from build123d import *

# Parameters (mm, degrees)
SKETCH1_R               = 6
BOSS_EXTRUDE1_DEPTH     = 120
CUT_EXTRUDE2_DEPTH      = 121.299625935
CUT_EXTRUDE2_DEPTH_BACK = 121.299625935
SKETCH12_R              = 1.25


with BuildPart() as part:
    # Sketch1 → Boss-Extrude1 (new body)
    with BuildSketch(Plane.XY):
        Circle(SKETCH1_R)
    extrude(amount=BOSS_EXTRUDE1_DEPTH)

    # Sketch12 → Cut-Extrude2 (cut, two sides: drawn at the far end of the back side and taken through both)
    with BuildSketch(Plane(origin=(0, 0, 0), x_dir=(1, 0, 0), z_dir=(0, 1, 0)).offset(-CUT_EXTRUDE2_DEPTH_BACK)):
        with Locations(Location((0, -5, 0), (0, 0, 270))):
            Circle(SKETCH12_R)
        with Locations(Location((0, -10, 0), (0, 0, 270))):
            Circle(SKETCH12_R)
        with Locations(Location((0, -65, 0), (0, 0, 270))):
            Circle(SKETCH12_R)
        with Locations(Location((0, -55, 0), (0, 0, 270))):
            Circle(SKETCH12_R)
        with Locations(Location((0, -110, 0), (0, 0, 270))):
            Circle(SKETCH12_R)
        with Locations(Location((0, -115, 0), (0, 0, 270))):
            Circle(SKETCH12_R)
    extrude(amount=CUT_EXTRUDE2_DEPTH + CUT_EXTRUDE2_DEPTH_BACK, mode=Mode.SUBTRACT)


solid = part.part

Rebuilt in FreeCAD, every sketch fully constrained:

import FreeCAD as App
import Part
import Sketcher

V = App.Vector

doc = App.newDocument("Part")
body = doc.addObject("PartDesign::Body", "Body")

sketch1 = body.newObject("Sketcher::SketchObject", "Sketch")
sketch1.AttachmentSupport = (doc.getObject("XY_Plane"), [""])
sketch1.MapMode = "FlatFace"
sketch1.addGeometry(Part.Circle(V(0, 0, 0), V(0, 0, 1), 6), False)
sketch1.addConstraint([
    Sketcher.Constraint("Coincident", 0, 3, -1, 1),
    Sketcher.Constraint("Diameter", 0, 12.0),
])
pad1 = body.newObject("PartDesign::Pad", "Pad")
pad1.Profile = sketch1
pad1.Length = 120

sketch2 = body.newObject("Sketcher::SketchObject", "Sketch001")
sketch2.AttachmentSupport = (doc.getObject("XZ_Plane"), [""])
sketch2.MapMode = "FlatFace"
sketch2.addGeometry([
    Part.Circle(V(0, 5, 0), V(0, 0, 1), 1.25),
    Part.Circle(V(0, 10, 0), V(0, 0, 1), 1.25),
    Part.Circle(V(0, 65, 0), V(0, 0, 1), 1.25),
    Part.Circle(V(0, 55, 0), V(0, 0, 1), 1.25),
    Part.Circle(V(0, 110, 0), V(0, 0, 1), 1.25),
    Part.Circle(V(0, 115, 0), V(0, 0, 1), 1.25),
], False)
sketch2.addConstraint([
    Sketcher.Constraint("Equal", 0, 1),
    Sketcher.Constraint("Equal", 1, 2),
    Sketcher.Constraint("Equal", 2, 3),
    Sketcher.Constraint("Equal", 3, 4),
    Sketcher.Constraint("Equal", 4, 5),
    Sketcher.Constraint("PointOnObject", 0, 3, -2),
    Sketcher.Constraint("PointOnObject", 1, 3, -2),
    Sketcher.Constraint("PointOnObject", 2, 3, -2),
    Sketcher.Constraint("PointOnObject", 3, 3, -2),
    Sketcher.Constraint("PointOnObject", 4, 3, -2),
    Sketcher.Constraint("PointOnObject", 5, 3, -2),
    Sketcher.Constraint("Diameter", 0, 2.5),
    Sketcher.Constraint("DistanceY", -1, 1, 0, 3, 5.0),
    Sketcher.Constraint("DistanceY", -1, 1, 1, 3, 10.0),
    Sketcher.Constraint("DistanceY", -1, 1, 2, 3, 65.0),
    Sketcher.Constraint("DistanceY", -1, 1, 3, 3, 55.0),
    Sketcher.Constraint("DistanceY", -1, 1, 4, 3, 110.0),
    Sketcher.Constraint("DistanceY", -1, 1, 5, 3, 115.0),
])
pocket1 = body.newObject("PartDesign::Pocket", "Pocket")
pocket1.Profile = sketch2
pocket1.Type = "ThroughAll"
pocket1.Midplane = True

doc.recompute()
